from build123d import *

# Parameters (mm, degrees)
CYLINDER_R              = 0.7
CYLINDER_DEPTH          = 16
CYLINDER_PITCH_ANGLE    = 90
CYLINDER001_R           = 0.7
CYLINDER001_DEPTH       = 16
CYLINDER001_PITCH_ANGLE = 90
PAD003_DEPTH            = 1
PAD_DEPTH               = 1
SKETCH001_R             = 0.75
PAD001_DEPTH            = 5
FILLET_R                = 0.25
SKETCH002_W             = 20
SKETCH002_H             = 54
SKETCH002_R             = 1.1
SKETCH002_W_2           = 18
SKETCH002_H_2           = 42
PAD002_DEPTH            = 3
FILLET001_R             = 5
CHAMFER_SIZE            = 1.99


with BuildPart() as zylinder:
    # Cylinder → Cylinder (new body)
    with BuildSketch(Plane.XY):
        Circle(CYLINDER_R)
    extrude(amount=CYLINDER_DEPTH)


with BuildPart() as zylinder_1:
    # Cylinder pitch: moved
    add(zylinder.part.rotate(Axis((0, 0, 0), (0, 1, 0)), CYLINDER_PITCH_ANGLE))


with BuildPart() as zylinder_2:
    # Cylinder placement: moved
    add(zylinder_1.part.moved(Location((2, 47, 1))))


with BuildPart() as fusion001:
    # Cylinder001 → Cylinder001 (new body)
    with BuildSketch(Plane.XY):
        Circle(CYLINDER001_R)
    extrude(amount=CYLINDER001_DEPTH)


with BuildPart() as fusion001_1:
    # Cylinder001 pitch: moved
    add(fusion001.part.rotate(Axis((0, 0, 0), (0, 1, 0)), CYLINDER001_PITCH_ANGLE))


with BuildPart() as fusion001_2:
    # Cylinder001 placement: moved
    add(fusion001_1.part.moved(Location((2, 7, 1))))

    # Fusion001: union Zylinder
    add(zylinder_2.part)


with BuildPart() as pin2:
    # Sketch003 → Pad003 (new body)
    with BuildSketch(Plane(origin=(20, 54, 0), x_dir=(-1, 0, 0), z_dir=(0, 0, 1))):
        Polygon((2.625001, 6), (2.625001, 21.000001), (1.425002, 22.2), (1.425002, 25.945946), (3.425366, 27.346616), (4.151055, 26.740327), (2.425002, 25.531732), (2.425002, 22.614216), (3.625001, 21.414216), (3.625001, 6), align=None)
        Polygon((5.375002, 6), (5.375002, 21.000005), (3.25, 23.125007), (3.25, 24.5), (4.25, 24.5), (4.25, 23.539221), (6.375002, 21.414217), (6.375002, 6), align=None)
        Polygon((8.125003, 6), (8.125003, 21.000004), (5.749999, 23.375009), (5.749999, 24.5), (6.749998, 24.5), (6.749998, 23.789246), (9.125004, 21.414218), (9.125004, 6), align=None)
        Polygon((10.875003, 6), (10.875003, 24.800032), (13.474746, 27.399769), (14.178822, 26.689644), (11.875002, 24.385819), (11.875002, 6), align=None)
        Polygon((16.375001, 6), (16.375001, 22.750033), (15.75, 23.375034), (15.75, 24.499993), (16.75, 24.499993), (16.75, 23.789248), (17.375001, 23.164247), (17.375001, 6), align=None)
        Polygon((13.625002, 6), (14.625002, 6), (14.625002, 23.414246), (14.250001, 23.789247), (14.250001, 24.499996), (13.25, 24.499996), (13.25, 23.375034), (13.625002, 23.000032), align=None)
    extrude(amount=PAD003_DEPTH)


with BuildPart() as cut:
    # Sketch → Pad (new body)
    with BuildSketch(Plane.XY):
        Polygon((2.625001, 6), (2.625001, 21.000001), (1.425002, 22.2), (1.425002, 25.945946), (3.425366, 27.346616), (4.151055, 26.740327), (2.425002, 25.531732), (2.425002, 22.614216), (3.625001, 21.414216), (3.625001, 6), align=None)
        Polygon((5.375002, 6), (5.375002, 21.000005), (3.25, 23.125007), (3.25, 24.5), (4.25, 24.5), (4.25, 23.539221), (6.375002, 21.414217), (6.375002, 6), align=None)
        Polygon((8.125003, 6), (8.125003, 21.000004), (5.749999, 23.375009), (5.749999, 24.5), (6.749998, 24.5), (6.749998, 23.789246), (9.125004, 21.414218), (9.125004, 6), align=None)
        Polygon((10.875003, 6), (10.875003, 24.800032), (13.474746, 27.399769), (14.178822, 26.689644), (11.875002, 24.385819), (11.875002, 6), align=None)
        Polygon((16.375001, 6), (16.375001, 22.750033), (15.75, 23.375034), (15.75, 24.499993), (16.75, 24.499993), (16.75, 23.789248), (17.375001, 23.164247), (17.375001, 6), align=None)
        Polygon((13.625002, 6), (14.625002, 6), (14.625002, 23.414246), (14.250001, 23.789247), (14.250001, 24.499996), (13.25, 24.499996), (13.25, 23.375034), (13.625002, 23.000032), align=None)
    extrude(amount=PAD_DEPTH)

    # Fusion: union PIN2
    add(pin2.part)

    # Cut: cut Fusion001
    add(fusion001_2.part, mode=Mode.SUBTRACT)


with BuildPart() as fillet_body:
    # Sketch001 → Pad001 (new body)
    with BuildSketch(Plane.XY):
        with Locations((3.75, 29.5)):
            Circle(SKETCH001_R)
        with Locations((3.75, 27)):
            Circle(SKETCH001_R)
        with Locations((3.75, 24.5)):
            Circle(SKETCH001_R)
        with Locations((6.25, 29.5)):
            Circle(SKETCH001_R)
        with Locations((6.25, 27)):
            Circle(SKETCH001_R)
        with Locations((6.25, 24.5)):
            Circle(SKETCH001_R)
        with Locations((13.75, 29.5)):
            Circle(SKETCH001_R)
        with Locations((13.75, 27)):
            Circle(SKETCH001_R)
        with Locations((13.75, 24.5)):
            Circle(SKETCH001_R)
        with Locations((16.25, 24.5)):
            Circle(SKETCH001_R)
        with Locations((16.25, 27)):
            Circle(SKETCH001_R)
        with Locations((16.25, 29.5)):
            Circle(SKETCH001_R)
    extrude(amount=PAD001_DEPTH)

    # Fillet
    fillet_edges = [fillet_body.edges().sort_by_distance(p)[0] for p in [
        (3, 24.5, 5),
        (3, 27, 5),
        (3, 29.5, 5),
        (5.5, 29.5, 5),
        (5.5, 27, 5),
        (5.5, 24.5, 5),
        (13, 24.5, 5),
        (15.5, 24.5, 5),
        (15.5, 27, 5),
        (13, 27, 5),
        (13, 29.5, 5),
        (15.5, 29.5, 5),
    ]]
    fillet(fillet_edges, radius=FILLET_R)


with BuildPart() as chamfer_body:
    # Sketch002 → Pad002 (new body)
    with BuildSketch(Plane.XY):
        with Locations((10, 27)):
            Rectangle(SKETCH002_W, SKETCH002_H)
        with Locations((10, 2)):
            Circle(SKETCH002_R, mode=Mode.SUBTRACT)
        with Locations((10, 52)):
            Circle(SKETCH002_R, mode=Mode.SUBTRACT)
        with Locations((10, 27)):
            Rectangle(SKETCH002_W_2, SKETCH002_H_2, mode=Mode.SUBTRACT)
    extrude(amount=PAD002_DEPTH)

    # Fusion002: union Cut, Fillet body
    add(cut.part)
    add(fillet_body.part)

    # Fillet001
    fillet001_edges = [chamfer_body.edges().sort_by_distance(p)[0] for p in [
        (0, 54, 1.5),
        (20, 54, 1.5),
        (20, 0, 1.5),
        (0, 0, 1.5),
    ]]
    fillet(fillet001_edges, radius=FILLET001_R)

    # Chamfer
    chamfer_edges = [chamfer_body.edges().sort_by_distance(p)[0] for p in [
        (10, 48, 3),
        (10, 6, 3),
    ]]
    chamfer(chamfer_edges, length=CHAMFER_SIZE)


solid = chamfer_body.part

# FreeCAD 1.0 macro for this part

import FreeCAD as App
import Part
import Sketcher
Q = App.Units.Quantity


def edges_at(feature, points):
    """Names of the edges that pass closest to the given points."""
    edges = feature.Shape.Edges
    near = lambda p: min(range(len(edges)), key=lambda i: edges[i].distToShape(Part.Vertex(*p))[0])
    return sorted({f"Edge{near(p) + 1}" for p in points})


def add_polygon(sketch, points):
    """Adds a closed chain of lines whose ends are joined by coincident constraints."""
    first, n = sketch.GeometryCount, len(points)
    for a, b in zip(points, points[1:] + points[:1]):
        sketch.addGeometry(Part.LineSegment(App.Vector(*a, 0), App.Vector(*b, 0)), False)
    for i in range(n):
        sketch.addConstraint(Sketcher.Constraint("Coincident", first + i, 2, first + (i + 1) % n, 1))

doc = App.newDocument("Part")
params = doc.addObject("Spreadsheet::Sheet", "Params")
for row, (alias, value) in enumerate([
    ("sketch1_diameter", "1.4 mm"),
    ("pad1_length", "16 mm"),
    ("sketch2_diameter", "1.4 mm"),
    ("pad2_length", "16 mm"),
    ("sketch3_width", "1 mm"),
    ("sketch3_width2", "1 mm"),
    ("sketch3_width3", "1 mm"),
    ("sketch3_width4", "1.000001 mm"),
    ("sketch3_width5", "0.999999 mm"),
    ("pad3_length", "1 mm"),
    ("sketch4_width", "1 mm"),
    ("sketch4_width2", "1 mm"),
    ("sketch4_width3", "1 mm"),
    ("sketch4_width4", "1.000001 mm"),
    ("sketch4_width5", "0.999999 mm"),
    ("pad4_length", "1 mm"),
    ("sketch5_diameter", "1.5 mm"),
    ("pad5_length", "5 mm"),
    ("fillet_radius", "0.25 mm"),
    ("sketch6_diameter", "2.2 mm"),
    ("sketch6_width", "20 mm"),
    ("sketch6_width2", "18 mm"),
    ("sketch6_height", "54 mm"),
    ("sketch6_height2", "42 mm"),
    ("pad6_length", "3 mm"),
    ("fillet2_radius", "5 mm"),
    ("chamfer_size", "1.99 mm"),
], start=1):
    params.set(f"A{row}", alias)
    params.set(f"B{row}", "=" + value)
    params.setAlias(f"B{row}", alias)

body = doc.addObject("PartDesign::Body", "Body")

sketch1 = body.newObject("Sketcher::SketchObject", "Sketch")
sketch1.AttachmentSupport = (doc.getObject("XY_Plane"), [""])
sketch1.MapMode = "FlatFace"
sketch1.addGeometry(Part.Circle(App.Vector(0, 0, 0), App.Vector(0, 0, 1), 0.7), False)
sketch1.addConstraint(Sketcher.Constraint("Coincident", 0, 3, -1, 1))
sketch1.addConstraint(Sketcher.Constraint("Diameter", 0, Q("1.4 mm")))
sketch1.setExpression("Constraints[1]", "Params.sketch1_diameter")
pad1 = body.newObject("PartDesign::Pad", "Pad")
pad1.Profile = sketch1
pad1.setExpression("Length", "Params.pad1_length")
body2 = doc.addObject("PartDesign::Body", "Body001")
doc.recompute()

body.Placement = App.Placement(App.Vector(0, 0, 0), App.Rotation(App.Vector(0, 1, 0), 90))
boolean = body2.newObject("PartDesign::Boolean", "Boolean")
boolean.Type = "Fuse"
boolean.addObjects([body])
body3 = doc.addObject("PartDesign::Body", "Body002")
doc.recompute()

body2.Placement = App.Placement(App.Vector(2, 47, 1), App.Rotation(App.Vector(0, 0, 1), 0))
boolean2 = body3.newObject("PartDesign::Boolean", "Boolean001")
boolean2.Type = "Fuse"
boolean2.addObjects([body2])
body4 = doc.addObject("PartDesign::Body", "Body003")

sketch2 = body4.newObject("Sketcher::SketchObject", "Sketch001")
sketch2.AttachmentSupport = (doc.getObject("XY_Plane003"), [""])
sketch2.MapMode = "FlatFace"
sketch2.addGeometry(Part.Circle(App.Vector(0, 0, 0), App.Vector(0, 0, 1), 0.7), False)
sketch2.addConstraint(Sketcher.Constraint("Coincident", 0, 3, -1, 1))
sketch2.addConstraint(Sketcher.Constraint("Diameter", 0, Q("1.4 mm")))
sketch2.setExpression("Constraints[1]", "Params.sketch2_diameter")
pad2 = body4.newObject("PartDesign::Pad", "Pad001")
pad2.Profile = sketch2
pad2.setExpression("Length", "Params.pad2_length")
body5 = doc.addObject("PartDesign::Body", "Body004")
doc.recompute()

body4.Placement = App.Placement(App.Vector(0, 0, 0), App.Rotation(App.Vector(0, 1, 0), 90))
boolean3 = body5.newObject("PartDesign::Boolean", "Boolean002")
boolean3.Type = "Fuse"
boolean3.addObjects([body4])
body6 = doc.addObject("PartDesign::Body", "Body005")
body6.AllowCompound = True
doc.recompute()

body5.Placement = App.Placement(App.Vector(2, 7, 1), App.Rotation(App.Vector(0, 0, 1), 0))
boolean4 = body6.newObject("PartDesign::Boolean", "Boolean003")
boolean4.Type = "Fuse"
boolean4.addObjects([body5])
doc.recompute()

boolean5 = body6.newObject("PartDesign::Boolean", "Boolean004")
boolean5.Type = "Fuse"
boolean5.addObjects([body3])
body7 = doc.addObject("PartDesign::Body", "Body006")
body7.AllowCompound = True

sketch3 = body7.newObject("Sketcher::SketchObject", "Sketch002")
sketch3.AttachmentSupport = (doc.getObject("XY_Plane006"), [""])
sketch3.MapMode = "FlatFace"
add_polygon(sketch3, [(17.374999, 32.999999), (17.374999, 48), (16.374999, 48), (16.374999, 32.585784), (17.574998, 31.385784), (17.574998, 28.468268), (15.848945, 27.259673), (16.574634, 26.653384), (18.574998, 28.054054), (18.574998, 31.8)])
add_polygon(sketch3, [(14.624998, 32.999995), (14.624998, 48), (13.624998, 48), (13.624998, 32.585783), (15.75, 30.460779), (15.75, 29.5), (16.75, 29.5), (16.75, 30.874993)])
add_polygon(sketch3, [(11.874997, 32.999996), (11.874997, 48), (10.874996, 48), (10.874996, 32.585782), (13.250002, 30.210754), (13.250002, 29.5), (14.250001, 29.5), (14.250001, 30.624991)])
add_polygon(sketch3, [(9.124997, 29.199968), (9.124997, 48), (8.124998, 48), (8.124998, 29.614181), (5.821178, 27.310356), (6.525254, 26.600231)])
add_polygon(sketch3, [(3.624999, 31.249967), (3.624999, 48), (2.624999, 48), (2.624999, 30.835753), (3.25, 30.210752), (3.25, 29.500007), (4.25, 29.500007), (4.25, 30.624966)])
add_polygon(sketch3, [(6.374998, 48), (5.374998, 48), (5.374998, 30.585754), (5.749999, 30.210753), (5.749999, 29.500004), (6.75, 29.500004), (6.75, 30.624966), (6.374998, 30.999968)])
sketch3.addConstraint(Sketcher.Constraint("Vertical", 0))
sketch3.addConstraint(Sketcher.Constraint("Horizontal", 1))
sketch3.addConstraint(Sketcher.Constraint("Vertical", 2))
sketch3.addConstraint(Sketcher.Constraint("Vertical", 4))
sketch3.addConstraint(Sketcher.Constraint("Vertical", 8))
sketch3.addConstraint(Sketcher.Constraint("Vertical", 10))
sketch3.addConstraint(Sketcher.Constraint("Horizontal", 11))
sketch3.addConstraint(Sketcher.Constraint("Vertical", 12))
sketch3.addConstraint(Sketcher.Constraint("Vertical", 14))
sketch3.addConstraint(Sketcher.Constraint("Horizontal", 15))
sketch3.addConstraint(Sketcher.Constraint("Vertical", 16))
sketch3.addConstraint(Sketcher.Constraint("Vertical", 18))
sketch3.addConstraint(Sketcher.Constraint("Horizontal", 19))
sketch3.addConstraint(Sketcher.Constraint("Vertical", 20))
sketch3.addConstraint(Sketcher.Constraint("Vertical", 22))
sketch3.addConstraint(Sketcher.Constraint("Horizontal", 23))
sketch3.addConstraint(Sketcher.Constraint("Vertical", 24))
sketch3.addConstraint(Sketcher.Constraint("Vertical", 26))
sketch3.addConstraint(Sketcher.Constraint("Horizontal", 27))
sketch3.addConstraint(Sketcher.Constraint("Vertical", 28))
sketch3.addConstraint(Sketcher.Constraint("Vertical", 32))
sketch3.addConstraint(Sketcher.Constraint("Horizontal", 33))
sketch3.addConstraint(Sketcher.Constraint("Vertical", 34))
sketch3.addConstraint(Sketcher.Constraint("Vertical", 36))
sketch3.addConstraint(Sketcher.Constraint("Horizontal", 37))
sketch3.addConstraint(Sketcher.Constraint("Vertical", 38))
sketch3.addConstraint(Sketcher.Constraint("Horizontal", 40))
sketch3.addConstraint(Sketcher.Constraint("Vertical", 41))
sketch3.addConstraint(Sketcher.Constraint("Vertical", 43))
sketch3.addConstraint(Sketcher.Constraint("Horizontal", 44))
sketch3.addConstraint(Sketcher.Constraint("Vertical", 45))
sketch3.addConstraint(Sketcher.Constraint("Vertical", 47))
sketch3.addConstraint(Sketcher.Constraint("DistanceX", 1, 2, 1, 1, Q("1 mm")))
sketch3.addConstraint(Sketcher.Constraint("DistanceX", 11, 2, 11, 1, Q("1 mm")))
sketch3.addConstraint(Sketcher.Constraint("DistanceX", 15, 1, 15, 2, Q("1 mm")))
sketch3.addConstraint(Sketcher.Constraint("DistanceX", 19, 2, 19, 1, Q("1.000001 mm")))
sketch3.addConstraint(Sketcher.Constraint("DistanceX", 23, 1, 23, 2, Q("0.999999 mm")))
sketch3.addConstraint(Sketcher.Constraint("DistanceX", 27, 2, 27, 1, Q("0.999999 mm")))
sketch3.addConstraint(Sketcher.Constraint("DistanceX", 33, 2, 33, 1, Q("1 mm")))
sketch3.addConstraint(Sketcher.Constraint("DistanceX", 37, 1, 37, 2, Q("1 mm")))
sketch3.addConstraint(Sketcher.Constraint("DistanceX", 40, 2, 40, 1, Q("1 mm")))
sketch3.addConstraint(Sketcher.Constraint("DistanceX", 44, 1, 44, 2, Q("1.000001 mm")))
sketch3.addConstraint(Sketcher.Constraint("DistanceY", 0, 1, 0, 2, Q("15.000001 mm")))
sketch3.addConstraint(Sketcher.Constraint("Distance", 30, Q("1 mm")))
sketch3.addConstraint(Sketcher.Constraint("DistanceY", -1, 1, 0, 2, Q("48 mm")))
sketch3.addConstraint(Sketcher.Constraint("DistanceY", -1, 1, 10, 2, Q("48 mm")))
sketch3.addConstraint(Sketcher.Constraint("DistanceY", -1, 1, 18, 2, Q("48 mm")))
sketch3.addConstraint(Sketcher.Constraint("DistanceY", -1, 1, 26, 2, Q("48 mm")))
sketch3.addConstraint(Sketcher.Constraint("DistanceY", -1, 1, 32, 2, Q("48 mm")))
sketch3.addConstraint(Sketcher.Constraint("DistanceY", -1, 1, 40, 2, Q("48 mm")))
sketch3.addConstraint(Sketcher.Constraint("DistanceX", 4, 2, 7, 2, Q("1 mm")))
sketch3.addConstraint(Sketcher.Constraint("DistanceX", 32, 2, 11, 2, Q("9.999999 mm")))
sketch3.addConstraint(Sketcher.Constraint("DistanceY", -1, 1, 8, 2, Q("31.8 mm")))
sketch3.addConstraint(Sketcher.Constraint("DistanceY", -1, 1, 14, 2, Q("29.5 mm")))
sketch3.addConstraint(Sketcher.Constraint("DistanceY", -1, 1, 22, 2, Q("29.5 mm")))
sketch3.addConstraint(Sketcher.Constraint("DistanceX", 2, 2, 3, 2, Q("1.199999 mm")))
sketch3.addConstraint(Sketcher.Constraint("DistanceY", 3, 2, 2, 2, Q("1.2 mm")))
sketch3.addConstraint(Sketcher.Constraint("DistanceY", 3, 2, 12, 2, Q("1.199999 mm")))
sketch3.addConstraint(Sketcher.Constraint("DistanceX", 18, 2, 1, 2, Q("4.500002 mm")))
sketch3.addConstraint(Sketcher.Constraint("DistanceX", 23, 2, 14, 2, Q("1.499999 mm")))
sketch3.addConstraint(Sketcher.Constraint("DistanceX", 26, 2, 11, 2, Q("4.500001 mm")))
sketch3.addConstraint(Sketcher.Constraint("DistanceX", 38, 2, 42, 2, Q("1.499999 mm")))
sketch3.addConstraint(Sketcher.Constraint("DistanceX", -1, 1, 13, 2, Q("15.75 mm")))
sketch3.addConstraint(Sketcher.Constraint("DistanceX", -1, 1, 35, 2, Q("3.25 mm")))
sketch3.addConstraint(Sketcher.Constraint("DistanceX", 10, 2, 1, 2, Q("1.750001 mm")))
sketch3.addConstraint(Sketcher.Constraint("DistanceX", 32, 2, 40, 2, Q("1.749999 mm")))
sketch3.addConstraint(Sketcher.Constraint("DistanceX", -1, 1, 0, 2, Q("17.374999 mm")))
sketch3.addConstraint(Sketcher.Constraint("DistanceY", 16, 2, 17, 2, Q("2.125002 mm")))
sketch3.addConstraint(Sketcher.Constraint("DistanceY", 35, 2, 34, 2, Q("0.625001 mm")))
sketch3.addConstraint(Sketcher.Constraint("DistanceY", 38, 2, 39, 2, Q("0.625001 mm")))
sketch3.addConstraint(Sketcher.Constraint("DistanceY", 42, 2, 41, 2, Q("0.375001 mm")))
sketch3.addConstraint(Sketcher.Constraint("DistanceY", 45, 2, 46, 2, Q("0.375002 mm")))
sketch3.addConstraint(Sketcher.Constraint("DistanceY", 14, 2, 14, 1, Q("0.960779 mm")))
sketch3.addConstraint(Sketcher.Constraint("DistanceY", 24, 1, 24, 2, Q("1.124991 mm")))
sketch3.addConstraint(Sketcher.Constraint("DistanceY", 28, 2, 28, 1, Q("18.385819 mm")))
sketch3.addConstraint(Sketcher.Constraint("DistanceY", 38, 1, 38, 2, Q("1.124959 mm")))
sketch3.addConstraint(Sketcher.Constraint("DistanceY", 43, 2, 43, 1, Q("0.710749 mm")))
sketch3.addConstraint(Sketcher.Constraint("DistanceY", 6, 2, 3, 2, Q("4.7324 mm")))
sketch3.addConstraint(Sketcher.Constraint("DistanceY", 28, 2, 20, 2, Q("2.971601 mm")))
sketch3.addConstraint(Sketcher.Constraint("DistanceY", 29, 2, 21, 2, Q("2.900398 mm")))
sketch3.addConstraint(Sketcher.Constraint("Distance", 5, Q("2.107121 mm")))
sketch3.addConstraint(Sketcher.Constraint("Distance", 13, Q("3.005208 mm")))
sketch3.addConstraint(Sketcher.Constraint("Distance", 21, Q("3.358781 mm")))
sketch3.addConstraint(Sketcher.Constraint("DistanceY", 4, 2, 4, 1, Q("2.917516 mm")))
sketch3.addConstraint(Sketcher.Constraint("DistanceY", 8, 1, 8, 2, Q("3.745946 mm")))
sketch3.addConstraint(Sketcher.Constraint("DistanceY", 10, 1, 10, 2, Q("15.000005 mm")))
sketch3.addConstraint(Sketcher.Constraint("DistanceY", 18, 1, 18, 2, Q("15.000004 mm")))
sketch3.addConstraint(Sketcher.Constraint("DistanceY", 26, 1, 26, 2, Q("18.800032 mm")))
sketch3.addConstraint(Sketcher.Constraint("DistanceY", 32, 1, 32, 2, Q("16.750033 mm")))
sketch3.addConstraint(Sketcher.Constraint("DistanceY", 34, 2, 34, 1, Q("17.164247 mm")))
sketch3.addConstraint(Sketcher.Constraint("DistanceY", 41, 2, 41, 1, Q("17.414246 mm")))
sketch3.addConstraint(Sketcher.Constraint("DistanceY", 45, 1, 45, 2, Q("1.124962 mm")))
sketch3.addConstraint(Sketcher.Constraint("DistanceY", -1, 1, 30, 2, Q("26.600231 mm")))
sketch3.addConstraint(Sketcher.Constraint("DistanceY", 5, 2, 3, 2, Q("4.126111 mm")))
sketch3.addConstraint(Sketcher.Constraint("DistanceX", 5, 2, 6, 2, Q("0.725689 mm")))
sketch3.addConstraint(Sketcher.Constraint("DistanceX", 29, 2, 28, 2, Q("2.30382 mm")))
sketch3.setExpression("Constraints[80]", "Params.sketch3_width")
sketch3.setExpression("Constraints[81]", "Params.sketch3_width2")
sketch3.setExpression("Constraints[82]", "Params.sketch3_width3")
sketch3.setExpression("Constraints[83]", "Params.sketch3_width4")
sketch3.setExpression("Constraints[84]", "Params.sketch3_width5")
pad3 = body7.newObject("PartDesign::Pad", "Pad002")
pad3.Profile = sketch3
pad3.setExpression("Length", "Params.pad3_length")
body8 = doc.addObject("PartDesign::Body", "Body007")
body8.AllowCompound = True

sketch4 = body8.newObject("Sketcher::SketchObject", "Sketch003")
sketch4.AttachmentSupport = (doc.getObject("XY_Plane007"), [""])
sketch4.MapMode = "FlatFace"
add_polygon(sketch4, [(2.625001, 21.000001), (2.625001, 6), (3.625001, 6), (3.625001, 21.414216), (2.425002, 22.614216), (2.425002, 25.531732), (4.151055, 26.740327), (3.425366, 27.346616), (1.425002, 25.945946), (1.425002, 22.2)])
add_polygon(sketch4, [(5.375002, 21.000005), (5.375002, 6), (6.375002, 6), (6.375002, 21.414217), (4.25, 23.539221), (4.25, 24.5), (3.25, 24.5), (3.25, 23.125007)])
add_polygon(sketch4, [(8.125003, 21.000004), (8.125003, 6), (9.125004, 6), (9.125004, 21.414218), (6.749998, 23.789246), (6.749998, 24.5), (5.749999, 24.5), (5.749999, 23.375009)])
add_polygon(sketch4, [(10.875003, 24.800032), (10.875003, 6), (11.875002, 6), (11.875002, 24.385819), (14.178822, 26.689644), (13.474746, 27.399769)])
add_polygon(sketch4, [(16.375001, 22.750033), (16.375001, 6), (17.375001, 6), (17.375001, 23.164247), (16.75, 23.789248), (16.75, 24.499993), (15.75, 24.499993), (15.75, 23.375034)])
add_polygon(sketch4, [(13.625002, 6), (14.625002, 6), (14.625002, 23.414246), (14.250001, 23.789247), (14.250001, 24.499996), (13.25, 24.499996), (13.25, 23.375034), (13.625002, 23.000032)])
sketch4.addConstraint(Sketcher.Constraint("Vertical", 0))
sketch4.addConstraint(Sketcher.Constraint("Horizontal", 1))
sketch4.addConstraint(Sketcher.Constraint("Vertical", 2))
sketch4.addConstraint(Sketcher.Constraint("Vertical", 4))
sketch4.addConstraint(Sketcher.Constraint("Vertical", 8))
sketch4.addConstraint(Sketcher.Constraint("Vertical", 10))
sketch4.addConstraint(Sketcher.Constraint("Horizontal", 11))
sketch4.addConstraint(Sketcher.Constraint("Vertical", 12))
sketch4.addConstraint(Sketcher.Constraint("Vertical", 14))
sketch4.addConstraint(Sketcher.Constraint("Horizontal", 15))
sketch4.addConstraint(Sketcher.Constraint("Vertical", 16))
sketch4.addConstraint(Sketcher.Constraint("Vertical", 18))
sketch4.addConstraint(Sketcher.Constraint("Horizontal", 19))
sketch4.addConstraint(Sketcher.Constraint("Vertical", 20))
sketch4.addConstraint(Sketcher.Constraint("Vertical", 22))
sketch4.addConstraint(Sketcher.Constraint("Horizontal", 23))
sketch4.addConstraint(Sketcher.Constraint("Vertical", 24))
sketch4.addConstraint(Sketcher.Constraint("Vertical", 26))
sketch4.addConstraint(Sketcher.Constraint("Horizontal", 27))
sketch4.addConstraint(Sketcher.Constraint("Vertical", 28))
sketch4.addConstraint(Sketcher.Constraint("Vertical", 32))
sketch4.addConstraint(Sketcher.Constraint("Horizontal", 33))
sketch4.addConstraint(Sketcher.Constraint("Vertical", 34))
sketch4.addConstraint(Sketcher.Constraint("Vertical", 36))
sketch4.addConstraint(Sketcher.Constraint("Horizontal", 37))
sketch4.addConstraint(Sketcher.Constraint("Vertical", 38))
sketch4.addConstraint(Sketcher.Constraint("Horizontal", 40))
sketch4.addConstraint(Sketcher.Constraint("Vertical", 41))
sketch4.addConstraint(Sketcher.Constraint("Vertical", 43))
sketch4.addConstraint(Sketcher.Constraint("Horizontal", 44))
sketch4.addConstraint(Sketcher.Constraint("Vertical", 45))
sketch4.addConstraint(Sketcher.Constraint("Vertical", 47))
sketch4.addConstraint(Sketcher.Constraint("DistanceX", 1, 1, 1, 2, Q("1 mm")))
sketch4.addConstraint(Sketcher.Constraint("DistanceX", 11, 1, 11, 2, Q("1 mm")))
sketch4.addConstraint(Sketcher.Constraint("DistanceX", 15, 2, 15, 1, Q("1 mm")))
sketch4.addConstraint(Sketcher.Constraint("DistanceX", 19, 1, 19, 2, Q("1.000001 mm")))
sketch4.addConstraint(Sketcher.Constraint("DistanceX", 23, 2, 23, 1, Q("0.999999 mm")))
sketch4.addConstraint(Sketcher.Constraint("DistanceX", 27, 1, 27, 2, Q("0.999999 mm")))
sketch4.addConstraint(Sketcher.Constraint("DistanceX", 33, 1, 33, 2, Q("1 mm")))
sketch4.addConstraint(Sketcher.Constraint("DistanceX", 37, 2, 37, 1, Q("1 mm")))
sketch4.addConstraint(Sketcher.Constraint("DistanceX", 40, 1, 40, 2, Q("1 mm")))
sketch4.addConstraint(Sketcher.Constraint("DistanceX", 44, 2, 44, 1, Q("1.000001 mm")))
sketch4.addConstraint(Sketcher.Constraint("DistanceY", 0, 2, 0, 1, Q("15.000001 mm")))
sketch4.addConstraint(Sketcher.Constraint("Distance", 30, Q("1 mm")))
sketch4.addConstraint(Sketcher.Constraint("DistanceY", -1, 1, 0, 2, Q("6 mm")))
sketch4.addConstraint(Sketcher.Constraint("DistanceY", -1, 1, 10, 2, Q("6 mm")))
sketch4.addConstraint(Sketcher.Constraint("DistanceY", -1, 1, 18, 2, Q("6 mm")))
sketch4.addConstraint(Sketcher.Constraint("DistanceY", -1, 1, 26, 2, Q("6 mm")))
sketch4.addConstraint(Sketcher.Constraint("DistanceY", -1, 1, 32, 2, Q("6 mm")))
sketch4.addConstraint(Sketcher.Constraint("DistanceY", -1, 1, 40, 2, Q("6 mm")))
sketch4.addConstraint(Sketcher.Constraint("DistanceX", 7, 2, 4, 2, Q("1 mm")))
sketch4.addConstraint(Sketcher.Constraint("DistanceX", 11, 2, 32, 2, Q("9.999999 mm")))
sketch4.addConstraint(Sketcher.Constraint("DistanceY", -1, 1, 8, 2, Q("22.2 mm")))
sketch4.addConstraint(Sketcher.Constraint("DistanceY", -1, 1, 14, 2, Q("24.5 mm")))
sketch4.addConstraint(Sketcher.Constraint("DistanceY", -1, 1, 22, 2, Q("24.5 mm")))
sketch4.addConstraint(Sketcher.Constraint("DistanceX", 3, 2, 2, 2, Q("1.199999 mm")))
sketch4.addConstraint(Sketcher.Constraint("DistanceY", 2, 2, 3, 2, Q("1.2 mm")))
sketch4.addConstraint(Sketcher.Constraint("DistanceY", 12, 2, 3, 2, Q("1.199999 mm")))
sketch4.addConstraint(Sketcher.Constraint("DistanceX", 1, 2, 18, 2, Q("4.500002 mm")))
sketch4.addConstraint(Sketcher.Constraint("DistanceX", 14, 2, 23, 2, Q("1.499999 mm")))
sketch4.addConstraint(Sketcher.Constraint("DistanceX", 11, 2, 26, 2, Q("4.500001 mm")))
sketch4.addConstraint(Sketcher.Constraint("DistanceX", 42, 2, 38, 2, Q("1.499999 mm")))
sketch4.addConstraint(Sketcher.Constraint("DistanceX", -1, 1, 13, 2, Q("4.25 mm")))
sketch4.addConstraint(Sketcher.Constraint("DistanceX", -1, 1, 35, 2, Q("16.75 mm")))
sketch4.addConstraint(Sketcher.Constraint("DistanceX", 1, 2, 10, 2, Q("1.750001 mm")))
sketch4.addConstraint(Sketcher.Constraint("DistanceX", 40, 2, 32, 2, Q("1.749999 mm")))
sketch4.addConstraint(Sketcher.Constraint("DistanceX", -1, 1, 0, 2, Q("2.625001 mm")))
sketch4.addConstraint(Sketcher.Constraint("DistanceY", 17, 2, 16, 2, Q("2.125002 mm")))
sketch4.addConstraint(Sketcher.Constraint("DistanceY", 34, 2, 35, 2, Q("0.625001 mm")))
sketch4.addConstraint(Sketcher.Constraint("DistanceY", 39, 2, 38, 2, Q("0.625001 mm")))
sketch4.addConstraint(Sketcher.Constraint("DistanceY", 41, 2, 42, 2, Q("0.375001 mm")))
sketch4.addConstraint(Sketcher.Constraint("DistanceY", 46, 2, 45, 2, Q("0.375002 mm")))
sketch4.addConstraint(Sketcher.Constraint("DistanceY", 14, 1, 14, 2, Q("0.960779 mm")))
sketch4.addConstraint(Sketcher.Constraint("DistanceY", 20, 1, 20, 2, Q("15.414218 mm")))
sketch4.addConstraint(Sketcher.Constraint("DistanceY", 24, 2, 24, 1, Q("1.124991 mm")))
sketch4.addConstraint(Sketcher.Constraint("DistanceY", 28, 1, 28, 2, Q("18.385819 mm")))
sketch4.addConstraint(Sketcher.Constraint("DistanceY", 38, 2, 38, 1, Q("1.124959 mm")))
sketch4.addConstraint(Sketcher.Constraint("DistanceY", 43, 1, 43, 2, Q("0.710749 mm")))
sketch4.addConstraint(Sketcher.Constraint("DistanceY", 3, 2, 6, 2, Q("4.7324 mm")))
sketch4.addConstraint(Sketcher.Constraint("DistanceY", 21, 2, 29, 2, Q("2.900398 mm")))
sketch4.addConstraint(Sketcher.Constraint("Distance", 5, Q("2.107121 mm")))
sketch4.addConstraint(Sketcher.Constraint("Distance", 13, Q("3.005208 mm")))
sketch4.addConstraint(Sketcher.Constraint("Distance", 21, Q("3.358781 mm")))
sketch4.addConstraint(Sketcher.Constraint("DistanceY", 4, 1, 4, 2, Q("2.917516 mm")))
sketch4.addConstraint(Sketcher.Constraint("DistanceY", 8, 2, 8, 1, Q("3.745946 mm")))
sketch4.addConstraint(Sketcher.Constraint("DistanceY", 10, 2, 10, 1, Q("15.000005 mm")))
sketch4.addConstraint(Sketcher.Constraint("DistanceY", 18, 2, 18, 1, Q("15.000004 mm")))
sketch4.addConstraint(Sketcher.Constraint("DistanceY", 26, 2, 26, 1, Q("18.800032 mm")))
sketch4.addConstraint(Sketcher.Constraint("DistanceY", 32, 2, 32, 1, Q("16.750033 mm")))
sketch4.addConstraint(Sketcher.Constraint("DistanceY", 34, 1, 34, 2, Q("17.164247 mm")))
sketch4.addConstraint(Sketcher.Constraint("DistanceY", 41, 1, 41, 2, Q("17.414246 mm")))
sketch4.addConstraint(Sketcher.Constraint("DistanceY", 45, 2, 45, 1, Q("1.124962 mm")))
sketch4.addConstraint(Sketcher.Constraint("DistanceY", -1, 1, 30, 2, Q("27.399769 mm")))
sketch4.addConstraint(Sketcher.Constraint("DistanceY", 3, 2, 5, 2, Q("4.126111 mm")))
sketch4.addConstraint(Sketcher.Constraint("DistanceX", 6, 2, 5, 2, Q("0.725689 mm")))
sketch4.addConstraint(Sketcher.Constraint("DistanceX", 28, 2, 29, 2, Q("2.30382 mm")))
sketch4.setExpression("Constraints[80]", "Params.sketch4_width")
sketch4.setExpression("Constraints[81]", "Params.sketch4_width2")
sketch4.setExpression("Constraints[82]", "Params.sketch4_width3")
sketch4.setExpression("Constraints[83]", "Params.sketch4_width4")
sketch4.setExpression("Constraints[84]", "Params.sketch4_width5")
pad4 = body8.newObject("PartDesign::Pad", "Pad003")
pad4.Profile = sketch4
pad4.setExpression("Length", "Params.pad4_length")
doc.recompute()

boolean6 = body8.newObject("PartDesign::Boolean", "Boolean005")
boolean6.Type = "Fuse"
boolean6.addObjects([body7])
doc.recompute()

boolean7 = body8.newObject("PartDesign::Boolean", "Boolean006")
boolean7.Type = "Cut"
boolean7.addObjects([body6])
body9 = doc.addObject("PartDesign::Body", "Body008")
body9.AllowCompound = True

sketch5 = body9.newObject("Sketcher::SketchObject", "Sketch004")
sketch5.AttachmentSupport = (doc.getObject("XY_Plane008"), [""])
sketch5.MapMode = "FlatFace"
sketch5.addGeometry(Part.Circle(App.Vector(3.8, 29.5, 0), App.Vector(0, 0, 1), 0.8), False)
sketch5.addGeometry(Part.Circle(App.Vector(3.8, 27, 0), App.Vector(0, 0, 1), 0.8), False)
sketch5.addGeometry(Part.Circle(App.Vector(3.8, 24.5, 0), App.Vector(0, 0, 1), 0.8), False)
sketch5.addGeometry(Part.Circle(App.Vector(6.2, 29.5, 0), App.Vector(0, 0, 1), 0.8), False)
sketch5.addGeometry(Part.Circle(App.Vector(6.2, 27, 0), App.Vector(0, 0, 1), 0.8), False)
sketch5.addGeometry(Part.Circle(App.Vector(6.2, 24.5, 0), App.Vector(0, 0, 1), 0.8), False)
sketch5.addGeometry(Part.Circle(App.Vector(13.8, 29.5, 0), App.Vector(0, 0, 1), 0.8), False)
sketch5.addGeometry(Part.Circle(App.Vector(13.8, 27, 0), App.Vector(0, 0, 1), 0.8), False)
sketch5.addGeometry(Part.Circle(App.Vector(13.8, 24.5, 0), App.Vector(0, 0, 1), 0.8), False)
sketch5.addGeometry(Part.Circle(App.Vector(16.2, 24.5, 0), App.Vector(0, 0, 1), 0.8), False)
sketch5.addGeometry(Part.Circle(App.Vector(16.2, 27, 0), App.Vector(0, 0, 1), 0.8), False)
sketch5.addGeometry(Part.Circle(App.Vector(16.2, 29.5, 0), App.Vector(0, 0, 1), 0.8), False)
sketch5.addConstraint(Sketcher.Constraint("Equal", 0, 1))
sketch5.addConstraint(Sketcher.Constraint("Equal", 1, 2))
sketch5.addConstraint(Sketcher.Constraint("Equal", 2, 3))
sketch5.addConstraint(Sketcher.Constraint("Equal", 3, 4))
sketch5.addConstraint(Sketcher.Constraint("Equal", 4, 5))
sketch5.addConstraint(Sketcher.Constraint("Equal", 5, 6))
sketch5.addConstraint(Sketcher.Constraint("Equal", 6, 7))
sketch5.addConstraint(Sketcher.Constraint("Equal", 7, 8))
sketch5.addConstraint(Sketcher.Constraint("Equal", 8, 9))
sketch5.addConstraint(Sketcher.Constraint("Equal", 9, 10))
sketch5.addConstraint(Sketcher.Constraint("Equal", 10, 11))
sketch5.addConstraint(Sketcher.Constraint("Horizontal", 0, 3, 3, 3))
sketch5.addConstraint(Sketcher.Constraint("Horizontal", 1, 3, 4, 3))
sketch5.addConstraint(Sketcher.Constraint("Horizontal", 2, 3, 5, 3))
sketch5.addConstraint(Sketcher.Constraint("Horizontal", 3, 3, 6, 3))
sketch5.addConstraint(Sketcher.Constraint("Horizontal", 4, 3, 7, 3))
sketch5.addConstraint(Sketcher.Constraint("Horizontal", 5, 3, 8, 3))
sketch5.addConstraint(Sketcher.Constraint("Horizontal", 8, 3, 9, 3))
sketch5.addConstraint(Sketcher.Constraint("Horizontal", 7, 3, 10, 3))
sketch5.addConstraint(Sketcher.Constraint("Horizontal", 6, 3, 11, 3))
sketch5.addConstraint(Sketcher.Constraint("Vertical", 0, 3, 1, 3))
sketch5.addConstraint(Sketcher.Constraint("Vertical", 1, 3, 2, 3))
sketch5.addConstraint(Sketcher.Constraint("Vertical", 3, 3, 4, 3))
sketch5.addConstraint(Sketcher.Constraint("Vertical", 4, 3, 5, 3))
sketch5.addConstraint(Sketcher.Constraint("Vertical", 6, 3, 7, 3))
sketch5.addConstraint(Sketcher.Constraint("Vertical", 7, 3, 8, 3))
sketch5.addConstraint(Sketcher.Constraint("Vertical", 9, 3, 10, 3))
sketch5.addConstraint(Sketcher.Constraint("Vertical", 10, 3, 11, 3))
sketch5.addConstraint(Sketcher.Constraint("Diameter", 0, Q("1.5 mm")))
sketch5.addConstraint(Sketcher.Constraint("DistanceY", -1, 1, 1, 3, Q("27 mm")))
sketch5.addConstraint(Sketcher.Constraint("DistanceY", 2, 3, 0, 3, Q("5 mm")))
sketch5.addConstraint(Sketcher.Constraint("DistanceX", 0, 3, 6, 3, Q("10 mm")))
sketch5.addConstraint(Sketcher.Constraint("DistanceX", 5, 3, 9, 3, Q("10 mm")))
sketch5.addConstraint(Sketcher.Constraint("DistanceY", -1, 1, 0, 3, Q("29.5 mm")))
sketch5.addConstraint(Sketcher.Constraint("DistanceX", 0, 3, 3, 3, Q("2.5 mm")))
sketch5.addConstraint(Sketcher.Constraint("DistanceX", -1, 1, 0, 3, Q("3.75 mm")))
sketch5.setExpression("Constraints[28]", "Params.sketch5_diameter")
pad5 = body9.newObject("PartDesign::Pad", "Pad004")
pad5.Profile = sketch5
pad5.setExpression("Length", "Params.pad5_length")
doc.recompute()

fillet = body9.newObject("PartDesign::Fillet", "Fillet")
fillet.Base = (pad5, edges_at(pad5, [
    (3, 24.5, 5),
    (3, 27, 5),
    (3, 29.5, 5),
    (5.5, 29.5, 5),
    (5.5, 27, 5),
    (5.5, 24.5, 5),
    (13, 24.5, 5),
    (15.5, 24.5, 5),
    (15.5, 27, 5),
    (13, 27, 5),
    (13, 29.5, 5),
    (15.5, 29.5, 5),
]))
fillet.setExpression("Radius", "Params.fillet_radius")
body10 = doc.addObject("PartDesign::Body", "Body009")

sketch6 = body10.newObject("Sketcher::SketchObject", "Sketch005")
sketch6.AttachmentSupport = (doc.getObject("XY_Plane009"), [""])
sketch6.MapMode = "FlatFace"
add_polygon(sketch6, [(0, 54), (0, 0), (20, 0), (20, 54)])
sketch6.addGeometry(Part.Circle(App.Vector(10, 2, 0), App.Vector(0, 0, 1), 1.1), False)
add_polygon(sketch6, [(19, 6), (1, 6), (1, 48), (19, 48)])
sketch6.addGeometry(Part.Circle(App.Vector(10, 52, 0), App.Vector(0, 0, 1), 1.1), False)
sketch6.addConstraint(Sketcher.Constraint("Vertical", 0))
sketch6.addConstraint(Sketcher.Constraint("Horizontal", 1))
sketch6.addConstraint(Sketcher.Constraint("Vertical", 2))
sketch6.addConstraint(Sketcher.Constraint("Horizontal", 3))
sketch6.addConstraint(Sketcher.Constraint("Horizontal", 5))
sketch6.addConstraint(Sketcher.Constraint("Vertical", 6))
sketch6.addConstraint(Sketcher.Constraint("Horizontal", 7))
sketch6.addConstraint(Sketcher.Constraint("Vertical", 8))
sketch6.addConstraint(Sketcher.Constraint("Coincident", 0, 2, -1, 1))
sketch6.addConstraint(Sketcher.Constraint("Equal", 4, 9))
sketch6.addConstraint(Sketcher.Constraint("Vertical", 4, 3, 9, 3))
sketch6.addConstraint(Sketcher.Constraint("Diameter", 4, Q("2.2 mm")))
sketch6.addConstraint(Sketcher.Constraint("DistanceX", 1, 1, 1, 2, Q("20 mm")))
sketch6.addConstraint(Sketcher.Constraint("DistanceX", 5, 2, 5, 1, Q("18 mm")))
sketch6.addConstraint(Sketcher.Constraint("DistanceY", 0, 2, 0, 1, Q("54 mm")))
sketch6.addConstraint(Sketcher.Constraint("DistanceY", 6, 1, 6, 2, Q("42 mm")))
sketch6.addConstraint(Sketcher.Constraint("DistanceX", -1, 1, 4, 3, Q("10 mm")))
sketch6.addConstraint(Sketcher.Constraint("DistanceY", -1, 1, 4, 3, Q("2 mm")))
sketch6.addConstraint(Sketcher.Constraint("DistanceY", -1, 1, 9, 3, Q("52 mm")))
sketch6.addConstraint(Sketcher.Constraint("DistanceX", -1, 1, 5, 2, Q("1 mm")))
sketch6.addConstraint(Sketcher.Constraint("DistanceY", -1, 1, 5, 2, Q("6 mm")))
sketch6.setExpression("Constraints[19]", "Params.sketch6_diameter")
sketch6.setExpression("Constraints[20]", "Params.sketch6_width")
sketch6.setExpression("Constraints[21]", "Params.sketch6_width2")
sketch6.setExpression("Constraints[22]", "Params.sketch6_height")
sketch6.setExpression("Constraints[23]", "Params.sketch6_height2")
pad6 = body10.newObject("PartDesign::Pad", "Pad005")
pad6.Profile = sketch6
pad6.setExpression("Length", "Params.pad6_length")
doc.recompute()

boolean8 = body10.newObject("PartDesign::Boolean", "Boolean007")
boolean8.Type = "Fuse"
boolean8.addObjects([body8])
doc.recompute()

boolean9 = body10.newObject("PartDesign::Boolean", "Boolean008")
boolean9.Type = "Fuse"
boolean9.addObjects([body9])
doc.recompute()

fillet2 = body10.newObject("PartDesign::Fillet", "Fillet001")
fillet2.Base = (boolean9, edges_at(boolean9, [
    (0, 54, 1.5),
    (20, 54, 1.5),
    (20, 0, 1.5),
    (0, 0, 1.5),
]))
fillet2.setExpression("Radius", "Params.fillet2_radius")
doc.recompute()

chamfer = body10.newObject("PartDesign::Chamfer", "Chamfer")
chamfer.Base = (fillet2, edges_at(fillet2, [(10, 48, 3), (10, 6, 3)]))
chamfer.setExpression("Size", "Params.chamfer_size")

doc.recompute()
